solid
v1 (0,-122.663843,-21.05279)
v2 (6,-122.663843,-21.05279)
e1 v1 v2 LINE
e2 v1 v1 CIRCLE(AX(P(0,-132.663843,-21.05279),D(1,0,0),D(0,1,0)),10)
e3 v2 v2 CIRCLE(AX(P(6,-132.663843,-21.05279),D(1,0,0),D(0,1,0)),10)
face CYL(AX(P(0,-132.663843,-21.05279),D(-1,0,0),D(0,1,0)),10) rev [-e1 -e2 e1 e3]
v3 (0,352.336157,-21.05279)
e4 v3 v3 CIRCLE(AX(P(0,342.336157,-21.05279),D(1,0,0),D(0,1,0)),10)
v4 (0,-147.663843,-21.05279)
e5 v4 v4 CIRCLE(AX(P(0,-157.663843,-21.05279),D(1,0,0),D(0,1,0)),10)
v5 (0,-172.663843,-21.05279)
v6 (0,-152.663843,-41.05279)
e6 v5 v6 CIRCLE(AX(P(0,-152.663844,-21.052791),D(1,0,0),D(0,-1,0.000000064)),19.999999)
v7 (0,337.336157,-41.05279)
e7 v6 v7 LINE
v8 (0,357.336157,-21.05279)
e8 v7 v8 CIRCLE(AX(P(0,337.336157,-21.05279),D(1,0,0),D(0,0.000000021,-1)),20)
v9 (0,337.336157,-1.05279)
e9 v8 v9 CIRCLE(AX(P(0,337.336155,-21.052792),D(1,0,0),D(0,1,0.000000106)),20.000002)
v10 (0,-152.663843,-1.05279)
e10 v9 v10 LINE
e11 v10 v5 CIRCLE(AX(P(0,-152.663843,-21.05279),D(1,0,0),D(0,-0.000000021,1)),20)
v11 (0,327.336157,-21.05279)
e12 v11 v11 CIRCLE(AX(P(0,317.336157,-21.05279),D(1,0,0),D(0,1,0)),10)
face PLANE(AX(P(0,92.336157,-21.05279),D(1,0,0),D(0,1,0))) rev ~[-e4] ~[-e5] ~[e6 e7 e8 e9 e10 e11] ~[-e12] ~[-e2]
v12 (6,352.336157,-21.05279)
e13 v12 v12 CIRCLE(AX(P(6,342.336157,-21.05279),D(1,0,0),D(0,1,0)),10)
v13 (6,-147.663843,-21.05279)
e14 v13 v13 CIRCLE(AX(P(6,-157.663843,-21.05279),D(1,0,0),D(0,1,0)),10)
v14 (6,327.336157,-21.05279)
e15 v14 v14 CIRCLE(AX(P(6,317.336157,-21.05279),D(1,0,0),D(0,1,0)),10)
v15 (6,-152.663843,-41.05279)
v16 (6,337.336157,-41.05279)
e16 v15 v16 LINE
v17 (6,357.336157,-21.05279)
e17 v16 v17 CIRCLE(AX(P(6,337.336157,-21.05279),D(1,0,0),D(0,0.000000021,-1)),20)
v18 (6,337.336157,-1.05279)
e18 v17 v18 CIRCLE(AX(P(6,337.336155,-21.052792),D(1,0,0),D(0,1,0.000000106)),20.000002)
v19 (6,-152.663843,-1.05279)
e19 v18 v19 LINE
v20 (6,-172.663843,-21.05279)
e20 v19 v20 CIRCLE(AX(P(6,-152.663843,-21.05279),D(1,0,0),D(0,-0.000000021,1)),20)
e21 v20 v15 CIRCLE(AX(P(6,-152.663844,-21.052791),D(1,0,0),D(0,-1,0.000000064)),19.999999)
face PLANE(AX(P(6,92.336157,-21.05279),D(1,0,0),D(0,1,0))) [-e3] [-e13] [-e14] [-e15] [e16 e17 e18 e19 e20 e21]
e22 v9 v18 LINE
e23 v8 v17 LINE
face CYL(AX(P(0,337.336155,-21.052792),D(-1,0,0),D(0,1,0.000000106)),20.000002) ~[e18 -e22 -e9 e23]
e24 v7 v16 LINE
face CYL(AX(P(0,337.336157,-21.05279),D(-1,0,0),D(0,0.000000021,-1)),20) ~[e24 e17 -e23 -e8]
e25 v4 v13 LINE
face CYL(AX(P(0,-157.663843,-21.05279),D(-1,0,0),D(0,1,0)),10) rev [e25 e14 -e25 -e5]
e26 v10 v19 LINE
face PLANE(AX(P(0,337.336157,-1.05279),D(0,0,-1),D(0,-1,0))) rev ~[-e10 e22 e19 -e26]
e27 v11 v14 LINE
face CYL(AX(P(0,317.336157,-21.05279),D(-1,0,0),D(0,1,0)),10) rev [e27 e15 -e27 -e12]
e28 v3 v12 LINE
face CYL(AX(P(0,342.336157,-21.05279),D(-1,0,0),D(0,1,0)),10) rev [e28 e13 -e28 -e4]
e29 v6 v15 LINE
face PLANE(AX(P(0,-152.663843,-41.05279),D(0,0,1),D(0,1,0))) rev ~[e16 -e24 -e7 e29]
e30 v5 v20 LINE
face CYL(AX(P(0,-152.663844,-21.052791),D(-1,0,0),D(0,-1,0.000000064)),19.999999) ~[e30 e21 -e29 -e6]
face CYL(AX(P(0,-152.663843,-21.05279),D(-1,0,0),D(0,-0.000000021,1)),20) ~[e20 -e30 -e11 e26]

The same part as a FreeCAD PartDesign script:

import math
import FreeCAD as App
import Part
import Sketcher

V = App.Vector
Q = App.Units.Quantity

doc = App.newDocument("Part")
body = doc.addObject("PartDesign::Body", "Body")

sketch1 = body.newObject("Sketcher::SketchObject", "Sketch")
sketch1.AttachmentSupport = (doc.getObject("YZ_Plane"), [""])
sketch1.MapMode = "FlatFace"
sketch1.addGeometry([
    Part.LineSegment(V(337.336157, -1.05279, 0), V(-152.663843, -1.05279, 0)),
    Part.ArcOfCircle(Part.Circle(V(-152.663843, -21.05279, 0), V(0, 0, 1), 20), math.radians(90.000001), math.radians(179.999999)),
    Part.ArcOfCircle(Part.Circle(V(-152.663844, -21.052791, 0), V(0, 0, 1), 19.999999), math.radians(179.999996), math.radians(270.000004)),
    Part.LineSegment(V(-152.663843, -41.05279, 0), V(337.336157, -41.05279, 0)),
    Part.ArcOfCircle(Part.Circle(V(337.336157, -21.05279, 0), V(0, 0, 1), 20), math.radians(-89.999999), math.radians(-0.000001)),
    Part.ArcOfCircle(Part.Circle(V(337.336155, -21.052792, 0), V(0, 0, 1), 20.000002), math.radians(0.000006), math.radians(89.999994)),
    Part.Circle(V(-157.663843, -21.05279, 0), V(0, 0, 1), 10),
    Part.Circle(V(-132.663843, -21.05279, 0), V(0, 0, 1), 10),
    Part.Circle(V(317.336157, -21.05279, 0), V(0, 0, 1), 10),
    Part.Circle(V(342.336157, -21.05279, 0), V(0, 0, 1), 10),
], False)
sketch1.addConstraint([
    Sketcher.Constraint("Tangent", 0, 2, 1, 1),
    Sketcher.Constraint("Tangent", 1, 2, 2, 1),
    Sketcher.Constraint("Tangent", 2, 2, 3, 1),
    Sketcher.Constraint("Tangent", 3, 2, 4, 1),
    Sketcher.Constraint("Tangent", 4, 2, 5, 1),
    Sketcher.Constraint("Tangent", 5, 2, 0, 1),
    Sketcher.Constraint("Horizontal", 0),
    Sketcher.Constraint("Horizontal", 3),
    Sketcher.Constraint("Equal", 1, 2),
    Sketcher.Constraint("Equal", 2, 4),
    Sketcher.Constraint("Equal", 6, 7),
    Sketcher.Constraint("Equal", 7, 8),
    Sketcher.Constraint("Equal", 8, 9),
    Sketcher.Constraint("Horizontal", 4, 3, 6, 3),
    Sketcher.Constraint("Horizontal", 6, 3, 7, 3),
    Sketcher.Constraint("Horizontal", 7, 3, 8, 3),
    Sketcher.Constraint("Horizontal", 8, 3, 9, 3),
    Sketcher.Constraint("Horizontal", 9, 3, 1, 2),
    Sketcher.Constraint("Horizontal", 1, 2, 4, 2),
    Sketcher.Constraint("Diameter", 6, Q("20 mm")),
    Sketcher.Constraint("Radius", 1, Q("20 mm")),
    Sketcher.Constraint("DistanceX", 0, 2, 0, 1, Q("490 mm")),
    Sketcher.Constraint("DistanceX", 6, 3, 2, 3, Q("4.999999 mm")),
    Sketcher.Constraint("DistanceX", 1, 3, 7, 3, Q("20 mm")),
    Sketcher.Constraint("DistanceX", 8, 3, 4, 3, Q("20 mm")),
    Sketcher.Constraint("DistanceX", 4, 3, 9, 3, Q("5 mm")),
    Sketcher.Constraint("DistanceY", 1, 3, -1, 1, Q("21.05279 mm")),
    Sketcher.Constraint("DistanceX", 1, 3, -1, 1, Q("152.663843 mm")),
])
pad1 = body.newObject("PartDesign::Pad", "Pad")
pad1.Profile = sketch1
pad1.Length = 6

doc.recompute()
